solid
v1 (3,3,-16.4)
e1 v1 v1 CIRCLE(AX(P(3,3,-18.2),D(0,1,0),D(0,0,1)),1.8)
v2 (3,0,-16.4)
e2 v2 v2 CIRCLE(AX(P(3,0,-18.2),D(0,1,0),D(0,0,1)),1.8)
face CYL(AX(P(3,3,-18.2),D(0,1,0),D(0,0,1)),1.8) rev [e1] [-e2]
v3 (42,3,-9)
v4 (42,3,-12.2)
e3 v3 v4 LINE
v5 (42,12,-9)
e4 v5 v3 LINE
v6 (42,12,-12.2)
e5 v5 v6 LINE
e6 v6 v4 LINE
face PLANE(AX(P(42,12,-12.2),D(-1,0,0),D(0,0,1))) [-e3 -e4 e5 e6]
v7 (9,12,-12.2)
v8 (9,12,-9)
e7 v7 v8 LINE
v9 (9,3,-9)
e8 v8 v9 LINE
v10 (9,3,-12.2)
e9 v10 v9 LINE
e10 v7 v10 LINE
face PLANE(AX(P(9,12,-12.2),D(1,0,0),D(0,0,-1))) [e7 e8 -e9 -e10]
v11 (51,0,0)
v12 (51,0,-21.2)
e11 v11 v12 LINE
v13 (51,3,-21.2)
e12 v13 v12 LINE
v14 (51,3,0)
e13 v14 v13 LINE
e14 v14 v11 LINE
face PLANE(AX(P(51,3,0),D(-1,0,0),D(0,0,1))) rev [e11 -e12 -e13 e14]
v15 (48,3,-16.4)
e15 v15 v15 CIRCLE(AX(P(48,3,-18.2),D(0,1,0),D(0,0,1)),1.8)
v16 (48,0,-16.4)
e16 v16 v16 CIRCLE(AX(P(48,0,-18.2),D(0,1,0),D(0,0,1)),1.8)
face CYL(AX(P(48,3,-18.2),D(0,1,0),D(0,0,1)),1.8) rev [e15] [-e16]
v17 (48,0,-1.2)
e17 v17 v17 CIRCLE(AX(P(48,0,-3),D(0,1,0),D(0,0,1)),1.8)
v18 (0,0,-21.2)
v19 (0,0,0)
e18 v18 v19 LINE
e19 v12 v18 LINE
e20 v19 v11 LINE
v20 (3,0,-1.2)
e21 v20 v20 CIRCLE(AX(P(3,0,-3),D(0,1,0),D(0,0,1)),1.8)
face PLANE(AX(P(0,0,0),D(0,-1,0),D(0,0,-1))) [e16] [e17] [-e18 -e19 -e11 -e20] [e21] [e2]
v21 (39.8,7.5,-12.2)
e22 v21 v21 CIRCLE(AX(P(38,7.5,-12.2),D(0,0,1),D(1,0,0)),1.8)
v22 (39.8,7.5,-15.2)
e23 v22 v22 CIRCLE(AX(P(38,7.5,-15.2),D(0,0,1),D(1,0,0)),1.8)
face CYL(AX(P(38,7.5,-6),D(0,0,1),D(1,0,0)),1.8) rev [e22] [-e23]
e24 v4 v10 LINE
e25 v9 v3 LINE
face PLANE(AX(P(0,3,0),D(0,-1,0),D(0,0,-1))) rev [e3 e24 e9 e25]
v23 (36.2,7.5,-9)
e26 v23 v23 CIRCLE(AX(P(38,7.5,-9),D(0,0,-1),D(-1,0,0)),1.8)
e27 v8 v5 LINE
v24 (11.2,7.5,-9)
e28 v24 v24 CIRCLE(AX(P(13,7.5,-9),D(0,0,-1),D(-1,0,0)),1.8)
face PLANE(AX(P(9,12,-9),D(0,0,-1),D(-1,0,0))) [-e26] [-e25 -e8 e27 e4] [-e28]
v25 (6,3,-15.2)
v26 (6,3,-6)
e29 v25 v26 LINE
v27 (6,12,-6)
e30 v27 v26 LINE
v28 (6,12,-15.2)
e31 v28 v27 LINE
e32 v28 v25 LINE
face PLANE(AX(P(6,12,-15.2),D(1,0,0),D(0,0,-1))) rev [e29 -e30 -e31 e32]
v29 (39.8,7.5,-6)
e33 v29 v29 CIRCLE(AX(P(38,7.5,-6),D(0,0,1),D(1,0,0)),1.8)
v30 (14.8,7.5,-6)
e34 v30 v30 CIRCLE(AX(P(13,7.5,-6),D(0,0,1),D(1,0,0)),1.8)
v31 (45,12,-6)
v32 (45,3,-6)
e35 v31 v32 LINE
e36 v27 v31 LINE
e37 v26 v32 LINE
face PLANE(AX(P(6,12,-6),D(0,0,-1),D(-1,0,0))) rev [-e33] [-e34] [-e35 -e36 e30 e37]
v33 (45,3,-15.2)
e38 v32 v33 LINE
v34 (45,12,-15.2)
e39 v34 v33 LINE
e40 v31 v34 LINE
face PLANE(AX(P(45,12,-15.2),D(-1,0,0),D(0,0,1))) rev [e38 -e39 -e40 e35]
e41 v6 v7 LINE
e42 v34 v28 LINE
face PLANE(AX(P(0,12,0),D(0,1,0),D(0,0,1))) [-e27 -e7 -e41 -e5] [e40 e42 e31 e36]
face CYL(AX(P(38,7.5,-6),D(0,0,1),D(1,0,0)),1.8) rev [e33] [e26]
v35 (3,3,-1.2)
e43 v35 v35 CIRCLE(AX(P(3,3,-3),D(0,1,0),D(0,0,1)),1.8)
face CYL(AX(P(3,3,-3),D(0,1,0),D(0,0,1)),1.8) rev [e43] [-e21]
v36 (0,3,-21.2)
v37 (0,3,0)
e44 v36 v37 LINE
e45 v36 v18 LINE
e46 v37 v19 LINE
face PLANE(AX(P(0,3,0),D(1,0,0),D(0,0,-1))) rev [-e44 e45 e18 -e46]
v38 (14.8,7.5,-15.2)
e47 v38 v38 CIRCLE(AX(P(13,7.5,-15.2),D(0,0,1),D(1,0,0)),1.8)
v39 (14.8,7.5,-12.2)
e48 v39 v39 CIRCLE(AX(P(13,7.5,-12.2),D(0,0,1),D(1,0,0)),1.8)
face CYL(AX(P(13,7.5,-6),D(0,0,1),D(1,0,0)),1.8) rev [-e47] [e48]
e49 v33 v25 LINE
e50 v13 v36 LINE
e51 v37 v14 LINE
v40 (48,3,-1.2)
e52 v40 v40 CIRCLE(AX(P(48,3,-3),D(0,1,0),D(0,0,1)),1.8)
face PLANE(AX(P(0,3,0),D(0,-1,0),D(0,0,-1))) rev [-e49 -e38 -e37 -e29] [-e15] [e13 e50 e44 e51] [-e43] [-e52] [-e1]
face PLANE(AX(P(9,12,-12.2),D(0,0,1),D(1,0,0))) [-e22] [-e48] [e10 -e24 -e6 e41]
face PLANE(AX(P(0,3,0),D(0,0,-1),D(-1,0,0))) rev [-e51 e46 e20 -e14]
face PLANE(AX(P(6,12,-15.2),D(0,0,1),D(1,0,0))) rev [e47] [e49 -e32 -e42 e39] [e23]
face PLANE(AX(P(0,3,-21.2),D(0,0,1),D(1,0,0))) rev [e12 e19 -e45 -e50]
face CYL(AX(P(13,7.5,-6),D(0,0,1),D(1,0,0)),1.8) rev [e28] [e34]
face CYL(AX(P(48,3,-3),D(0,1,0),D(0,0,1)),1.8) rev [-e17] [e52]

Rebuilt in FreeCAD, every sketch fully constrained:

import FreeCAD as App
import Part
import Sketcher
Q = App.Units.Quantity


def add_polygon(sketch, points):
    """Adds a closed chain of lines whose ends are joined by coincident constraints."""
    first, n = sketch.GeometryCount, len(points)
    for a, b in zip(points, points[1:] + points[:1]):
        sketch.addGeometry(Part.LineSegment(App.Vector(*a, 0), App.Vector(*b, 0)), False)
    for i in range(n):
        sketch.addConstraint(Sketcher.Constraint("Coincident", first + i, 2, first + (i + 1) % n, 1))

doc = App.newDocument("Part")
body = doc.addObject("PartDesign::Body", "Body")

# Sketch on XZ plane
sketch1 = body.newObject("Sketcher::SketchObject", "Sketch")
sketch1.AttachmentSupport = (doc.getObject("XZ_Plane"), [""])
sketch1.MapMode = "FlatFace"
add_polygon(sketch1, [(0, -21.2), (0, 0), (51, 0), (51, -21.2)])  # lines 0-3
sketch1.addConstraint([
    Sketcher.Constraint("Vertical", 0),
    Sketcher.Constraint("Horizontal", 1),
    Sketcher.Constraint("Vertical", 2),
    Sketcher.Constraint("Horizontal", 3),
    Sketcher.Constraint("Coincident", 0, 2, -1, 1),
    Sketcher.Constraint("DistanceX", 1, 1, 1, 2, Q("51 mm")),
    Sketcher.Constraint("DistanceY", 0, 1, 0, 2, Q("21.2 mm")),
])
pad1 = body.newObject("PartDesign::Pad", "Pad")
pad1.Profile = sketch1
pad1.Length = 3
pad1.Reversed = True

# Sketch on XZ plane
sketch2 = body.newObject("Sketcher::SketchObject", "Sketch001")
sketch2.AttachmentSupport = (doc.getObject("XZ_Plane"), [""])
sketch2.MapMode = "FlatFace"
sketch2.AttachmentOffset = App.Placement(App.Vector(0, 0, -3), App.Rotation())
add_polygon(sketch2, [(6, -15.2), (6, -6), (45, -6), (45, -15.2)])  # lines 0-3
add_polygon(sketch2, [(42, -9), (9, -9), (9, -12.2), (42, -12.2)])  # lines 4-7
sketch2.addConstraint([
    Sketcher.Constraint("Vertical", 0),
    Sketcher.Constraint("Horizontal", 1),
    Sketcher.Constraint("Vertical", 2),
    Sketcher.Constraint("Horizontal", 3),
    Sketcher.Constraint("Horizontal", 4),
    Sketcher.Constraint("Vertical", 5),
    Sketcher.Constraint("Horizontal", 6),
    Sketcher.Constraint("Vertical", 7),
    Sketcher.Constraint("DistanceX", 1, 1, 1, 2, Q("39 mm")),
    Sketcher.Constraint("DistanceX", 4, 2, 4, 1, Q("33 mm")),
    Sketcher.Constraint("DistanceY", 0, 1, 0, 2, Q("9.2 mm")),
    Sketcher.Constraint("DistanceY", 5, 2, 5, 1, Q("3.2 mm")),
    Sketcher.Constraint("DistanceX", -1, 1, 0, 2, Q("6 mm")),
    Sketcher.Constraint("DistanceY", 0, 2, -1, 1, Q("6 mm")),
    Sketcher.Constraint("DistanceX", -1, 1, 4, 2, Q("9 mm")),
    Sketcher.Constraint("DistanceY", 4, 2, -1, 1, Q("9 mm")),
])
pad2 = body.newObject("PartDesign::Pad", "Pad001")
pad2.Profile = sketch2
pad2.Length = 9
pad2.Reversed = True

# Sketch on XZ plane
sketch3 = body.newObject("Sketcher::SketchObject", "Sketch002")
sketch3.AttachmentSupport = (doc.getObject("XZ_Plane"), [""])
sketch3.MapMode = "FlatFace"
sketch3.AttachmentOffset = App.Placement(App.Vector(0, 0, -3), App.Rotation())
sketch3.addGeometry([
    Part.Circle(App.Vector(3, -18.2, 0), App.Vector(0, 0, 1), 1.8),
    Part.Circle(App.Vector(48, -18.2, 0), App.Vector(0, 0, 1), 1.8),
    Part.Circle(App.Vector(48, -3, 0), App.Vector(0, 0, 1), 1.8),
    Part.Circle(App.Vector(3, -3, 0), App.Vector(0, 0, 1), 1.8),
], False)
sketch3.addConstraint([
    Sketcher.Constraint("Equal", 0, 1),
    Sketcher.Constraint("Equal", 1, 2),
    Sketcher.Constraint("Equal", 2, 3),
    Sketcher.Constraint("Horizontal", 0, 3, 1, 3),
    Sketcher.Constraint("Horizontal", 2, 3, 3, 3),
    Sketcher.Constraint("Vertical", 1, 3, 2, 3),
    Sketcher.Constraint("Vertical", 0, 3, 3, 3),
    Sketcher.Constraint("Diameter", 0, Q("3.6 mm")),
    Sketcher.Constraint("DistanceX", -1, 1, 0, 3, Q("3 mm")),
    Sketcher.Constraint("DistanceX", -1, 1, 1, 3, Q("48 mm")),
    Sketcher.Constraint("DistanceY", 2, 3, -1, 1, Q("3 mm")),
    Sketcher.Constraint("DistanceY", 0, 3, -1, 1, Q("18.2 mm")),
])
doc.recompute()
hole = body.newObject("PartDesign::Hole", "Hole")
hole.Profile = sketch3
hole.ThreadType = "None"
hole.Diameter = 3.6
hole.DepthType = "ThroughAll"
hole.Reversed = True

# Sketch on XY plane
sketch4 = body.newObject("Sketcher::SketchObject", "Sketch003")
sketch4.AttachmentSupport = (doc.getObject("XY_Plane"), [""])
sketch4.MapMode = "FlatFace"
sketch4.AttachmentOffset = App.Placement(App.Vector(0, 0, -6), App.Rotation())
sketch4.addGeometry([
    Part.Circle(App.Vector(13, 7.5, 0), App.Vector(0, 0, 1), 1.8),
    Part.Circle(App.Vector(38, 7.5, 0), App.Vector(0, 0, 1), 1.8),
], False)
sketch4.addConstraint([
    Sketcher.Constraint("Equal", 0, 1),
    Sketcher.Constraint("Horizontal", 0, 3, 1, 3),
    Sketcher.Constraint("Diameter", 0, Q("3.6 mm")),
    Sketcher.Constraint("DistanceX", -1, 1, 0, 3, Q("13 mm")),
    Sketcher.Constraint("DistanceX", -1, 1, 1, 3, Q("38 mm")),
    Sketcher.Constraint("DistanceY", -1, 1, 0, 3, Q("7.5 mm")),
])
doc.recompute()
hole2 = body.newObject("PartDesign::Hole", "Hole001")
hole2.Profile = sketch4
hole2.ThreadType = "None"
hole2.Diameter = 3.6
hole2.DepthType = "ThroughAll"

doc.recompute()
